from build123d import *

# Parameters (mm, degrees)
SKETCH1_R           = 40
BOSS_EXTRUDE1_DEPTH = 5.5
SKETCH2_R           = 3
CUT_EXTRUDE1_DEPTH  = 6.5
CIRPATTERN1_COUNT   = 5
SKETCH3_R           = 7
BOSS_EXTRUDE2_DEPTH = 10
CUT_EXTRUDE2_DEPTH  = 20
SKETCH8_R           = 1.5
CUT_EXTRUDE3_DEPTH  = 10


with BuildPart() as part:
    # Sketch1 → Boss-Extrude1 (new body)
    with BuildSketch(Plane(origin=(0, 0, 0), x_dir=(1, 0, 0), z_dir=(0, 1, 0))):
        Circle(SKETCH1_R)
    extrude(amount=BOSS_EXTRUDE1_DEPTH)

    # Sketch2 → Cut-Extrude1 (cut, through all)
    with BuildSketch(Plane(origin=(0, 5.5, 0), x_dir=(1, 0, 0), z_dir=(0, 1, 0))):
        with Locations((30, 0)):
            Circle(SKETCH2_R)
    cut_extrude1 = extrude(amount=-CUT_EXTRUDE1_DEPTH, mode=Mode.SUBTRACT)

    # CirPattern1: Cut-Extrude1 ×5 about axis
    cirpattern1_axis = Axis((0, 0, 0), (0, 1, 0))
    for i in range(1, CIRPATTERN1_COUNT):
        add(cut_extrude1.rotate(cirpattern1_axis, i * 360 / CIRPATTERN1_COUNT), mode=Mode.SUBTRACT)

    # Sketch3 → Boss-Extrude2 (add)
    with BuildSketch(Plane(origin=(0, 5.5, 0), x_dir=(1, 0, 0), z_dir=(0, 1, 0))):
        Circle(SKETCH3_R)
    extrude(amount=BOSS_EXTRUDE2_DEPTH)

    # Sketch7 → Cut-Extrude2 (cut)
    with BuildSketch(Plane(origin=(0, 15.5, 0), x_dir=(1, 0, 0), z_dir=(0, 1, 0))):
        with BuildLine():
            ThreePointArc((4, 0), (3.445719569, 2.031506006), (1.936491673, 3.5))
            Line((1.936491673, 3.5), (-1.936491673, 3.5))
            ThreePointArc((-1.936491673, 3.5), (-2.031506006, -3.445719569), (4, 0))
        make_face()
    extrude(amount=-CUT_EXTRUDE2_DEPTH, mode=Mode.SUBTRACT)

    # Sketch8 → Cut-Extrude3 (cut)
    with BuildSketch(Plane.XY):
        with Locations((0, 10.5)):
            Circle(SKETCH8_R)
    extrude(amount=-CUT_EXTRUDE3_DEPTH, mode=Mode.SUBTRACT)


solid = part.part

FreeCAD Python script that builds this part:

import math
import FreeCAD as App
import Part
import Sketcher
from FreeCAD import Vector

doc = App.newDocument("Part")
body = doc.addObject("PartDesign::Body", "Body")

sketch1 = body.newObject("Sketcher::SketchObject", "Sketch")
sketch1.AttachmentSupport = (doc.getObject("XZ_Plane"), [""])
sketch1.MapMode = "FlatFace"
sketch1.addGeometry(Part.Circle(Vector(0, 0, 0), Vector(0, 0, 1), 40), False)
sketch1.addConstraint([
    Sketcher.Constraint("Coincident", 0, 3, -1, 1),
    Sketcher.Constraint("Diameter", 0, 80.0),
])
pad1 = body.newObject("PartDesign::Pad", "Pad")
pad1.Profile = sketch1
pad1.Length = 5.5
pad1.Reversed = True

sketch2 = body.newObject("Sketcher::SketchObject", "Sketch001")
sketch2.AttachmentSupport = (doc.getObject("XZ_Plane"), [""])
sketch2.MapMode = "FlatFace"
sketch2.AttachmentOffset = App.Placement(Vector(0, 0, -5.5), App.Rotation())
sketch2.addGeometry(Part.Circle(Vector(30, 0, 0), Vector(0, 0, 1), 3), False)
sketch2.addConstraint([
    Sketcher.Constraint("PointOnObject", 0, 3, -1),
    Sketcher.Constraint("Diameter", 0, 6.0),
    Sketcher.Constraint("DistanceX", -1, 1, 0, 3, 30.0),
])
pocket1 = body.newObject("PartDesign::Pocket", "Pocket")
pocket1.Profile = sketch2
pocket1.Type = "ThroughAll"
pocket1.Reversed = True
doc.recompute()

polarpattern = body.newObject("PartDesign::PolarPattern", "PolarPattern")
polarpattern.Originals = [pocket1]
polarpattern.Axis = (doc.getObject("Y_Axis"), [""])
polarpattern.Angle = 360
polarpattern.Occurrences = 5
body.Tip = polarpattern

sketch3 = body.newObject("Sketcher::SketchObject", "Sketch002")
sketch3.AttachmentSupport = (doc.getObject("XZ_Plane"), [""])
sketch3.MapMode = "FlatFace"
sketch3.AttachmentOffset = App.Placement(Vector(0, 0, -5.5), App.Rotation())
sketch3.addGeometry(Part.Circle(Vector(0, 0, 0), Vector(0, 0, 1), 7), False)
sketch3.addConstraint([
    Sketcher.Constraint("Coincident", 0, 3, -1, 1),
    Sketcher.Constraint("Diameter", 0, 14.0),
])
pad2 = body.newObject("PartDesign::Pad", "Pad001")
pad2.Profile = sketch3
pad2.Length = 10
pad2.Reversed = True

sketch4 = body.newObject("Sketcher::SketchObject", "Sketch003")
sketch4.AttachmentSupport = (doc.getObject("XZ_Plane"), [""])
sketch4.MapMode = "FlatFace"
sketch4.AttachmentOffset = App.Placement(Vector(0, 0, -15.5), App.Rotation())
sketch4.addGeometry([
    Part.ArcOfCircle(Part.Circle(Vector(0, 0, 0), Vector(0, 0, 1), 4), math.radians(-61.044976), math.radians(0)),
    Part.LineSegment(Vector(1.936492, -3.5, 0), Vector(-1.936492, -3.5, 0)),
    Part.ArcOfCircle(Part.Circle(Vector(0, 0, 0), Vector(0, 0, 1), 4), math.radians(0), math.radians(241.044976)),
], False)
sketch4.addConstraint([
    Sketcher.Constraint("Coincident", 0, 1, 1, 1),
    Sketcher.Constraint("Coincident", 1, 2, 2, 2),
    Sketcher.Constraint("Tangent", 2, 1, 0, 2),
    Sketcher.Constraint("Horizontal", 1),
    Sketcher.Constraint("Coincident", 0, 3, -1, 1),
    Sketcher.Constraint("Equal", 0, 2),
    Sketcher.Constraint("PointOnObject", 2, 1, -1),
    Sketcher.Constraint("Radius", 0, 4.0),
    Sketcher.Constraint("DistanceY", 0, 1, -1, 1, 3.5),
])
pocket2 = body.newObject("PartDesign::Pocket", "Pocket001")
pocket2.Profile = sketch4
pocket2.Length = 20
pocket2.Reversed = True

sketch5 = body.newObject("Sketcher::SketchObject", "Sketch004")
sketch5.AttachmentSupport = (doc.getObject("XY_Plane"), [""])
sketch5.MapMode = "FlatFace"
sketch5.addGeometry(Part.Circle(Vector(0, 10.5, 0), Vector(0, 0, 1), 1.5), False)
sketch5.addConstraint([
    Sketcher.Constraint("PointOnObject", 0, 3, -2),
    Sketcher.Constraint("Diameter", 0, 3.0),
    Sketcher.Constraint("DistanceY", -1, 1, 0, 3, 10.5),
])
pocket3 = body.newObject("PartDesign::Pocket", "Pocket002")
pocket3.Profile = sketch5
pocket3.Length = 10

doc.recompute()
